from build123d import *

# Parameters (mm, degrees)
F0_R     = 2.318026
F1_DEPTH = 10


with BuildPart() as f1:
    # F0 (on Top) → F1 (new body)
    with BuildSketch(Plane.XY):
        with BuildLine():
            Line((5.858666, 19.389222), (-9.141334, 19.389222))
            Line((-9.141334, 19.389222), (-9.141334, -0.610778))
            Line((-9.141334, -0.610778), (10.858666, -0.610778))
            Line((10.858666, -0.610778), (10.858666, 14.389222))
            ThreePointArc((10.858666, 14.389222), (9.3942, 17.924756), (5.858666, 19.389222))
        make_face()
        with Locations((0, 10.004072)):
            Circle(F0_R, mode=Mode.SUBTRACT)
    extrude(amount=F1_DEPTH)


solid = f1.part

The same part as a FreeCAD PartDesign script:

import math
import FreeCAD as App
import Part
import Sketcher

doc = App.newDocument("Part")
body = doc.addObject("PartDesign::Body", "Body")

# Sketch on XY plane
sketch1 = body.newObject("Sketcher::SketchObject", "Sketch")
sketch1.AttachmentSupport = (doc.getObject("XY_Plane"), [""])
sketch1.MapMode = "FlatFace"
sketch1.addGeometry([
    Part.LineSegment(App.Vector(5.9, 19.4, 0), App.Vector(-9.1, 19.4, 0)),  # 0
    Part.LineSegment(App.Vector(-9.1, 19.4, 0), App.Vector(-9.1, -0.6, 0)),  # 1
    Part.LineSegment(App.Vector(-9.1, -0.6, 0), App.Vector(10.9, -0.6, 0)),  # 2
    Part.LineSegment(App.Vector(10.9, -0.6, 0), App.Vector(10.9, 14.4, 0)),  # 3
    Part.ArcOfCircle(Part.Circle(App.Vector(5.9, 14.4, 0), App.Vector(0, 0, 1), 5), math.radians(0), math.radians(90)),  # 4
    Part.Circle(App.Vector(0, 10, 0), App.Vector(0, 0, 1), 2.3),  # 5
], False)
sketch1.addConstraint([
    Sketcher.Constraint("Coincident", 0, 2, 1, 1),
    Sketcher.Constraint("Coincident", 1, 2, 2, 1),
    Sketcher.Constraint("Coincident", 2, 2, 3, 1),
    Sketcher.Constraint("Tangent", 3, 2, 4, 1),
    Sketcher.Constraint("Tangent", 4, 2, 0, 1),
    Sketcher.Constraint("Horizontal", 0),
    Sketcher.Constraint("Vertical", 1),
    Sketcher.Constraint("Horizontal", 2),
    Sketcher.Constraint("Vertical", 3),
    Sketcher.Constraint("PointOnObject", 5, 3, -2),
    Sketcher.Constraint("Equal", 2, 1),
    Sketcher.Constraint("Radius", 4, 5.0),
    Sketcher.Constraint("DistanceX", 0, 2, 0, 1, 15.0),
    Sketcher.Constraint("Diameter", 5, 4.636052),
    Sketcher.Constraint("DistanceY", -1, 1, 0, 2, 19.389222),
    Sketcher.Constraint("DistanceY", 5, 3, 4, 3, 4.38515),
    Sketcher.Constraint("DistanceX", -1, 1, 4, 3, 5.858666),
])
pad1 = body.newObject("PartDesign::Pad", "Pad")
pad1.Profile = sketch1
pad1.Length = 10

doc.recompute()
